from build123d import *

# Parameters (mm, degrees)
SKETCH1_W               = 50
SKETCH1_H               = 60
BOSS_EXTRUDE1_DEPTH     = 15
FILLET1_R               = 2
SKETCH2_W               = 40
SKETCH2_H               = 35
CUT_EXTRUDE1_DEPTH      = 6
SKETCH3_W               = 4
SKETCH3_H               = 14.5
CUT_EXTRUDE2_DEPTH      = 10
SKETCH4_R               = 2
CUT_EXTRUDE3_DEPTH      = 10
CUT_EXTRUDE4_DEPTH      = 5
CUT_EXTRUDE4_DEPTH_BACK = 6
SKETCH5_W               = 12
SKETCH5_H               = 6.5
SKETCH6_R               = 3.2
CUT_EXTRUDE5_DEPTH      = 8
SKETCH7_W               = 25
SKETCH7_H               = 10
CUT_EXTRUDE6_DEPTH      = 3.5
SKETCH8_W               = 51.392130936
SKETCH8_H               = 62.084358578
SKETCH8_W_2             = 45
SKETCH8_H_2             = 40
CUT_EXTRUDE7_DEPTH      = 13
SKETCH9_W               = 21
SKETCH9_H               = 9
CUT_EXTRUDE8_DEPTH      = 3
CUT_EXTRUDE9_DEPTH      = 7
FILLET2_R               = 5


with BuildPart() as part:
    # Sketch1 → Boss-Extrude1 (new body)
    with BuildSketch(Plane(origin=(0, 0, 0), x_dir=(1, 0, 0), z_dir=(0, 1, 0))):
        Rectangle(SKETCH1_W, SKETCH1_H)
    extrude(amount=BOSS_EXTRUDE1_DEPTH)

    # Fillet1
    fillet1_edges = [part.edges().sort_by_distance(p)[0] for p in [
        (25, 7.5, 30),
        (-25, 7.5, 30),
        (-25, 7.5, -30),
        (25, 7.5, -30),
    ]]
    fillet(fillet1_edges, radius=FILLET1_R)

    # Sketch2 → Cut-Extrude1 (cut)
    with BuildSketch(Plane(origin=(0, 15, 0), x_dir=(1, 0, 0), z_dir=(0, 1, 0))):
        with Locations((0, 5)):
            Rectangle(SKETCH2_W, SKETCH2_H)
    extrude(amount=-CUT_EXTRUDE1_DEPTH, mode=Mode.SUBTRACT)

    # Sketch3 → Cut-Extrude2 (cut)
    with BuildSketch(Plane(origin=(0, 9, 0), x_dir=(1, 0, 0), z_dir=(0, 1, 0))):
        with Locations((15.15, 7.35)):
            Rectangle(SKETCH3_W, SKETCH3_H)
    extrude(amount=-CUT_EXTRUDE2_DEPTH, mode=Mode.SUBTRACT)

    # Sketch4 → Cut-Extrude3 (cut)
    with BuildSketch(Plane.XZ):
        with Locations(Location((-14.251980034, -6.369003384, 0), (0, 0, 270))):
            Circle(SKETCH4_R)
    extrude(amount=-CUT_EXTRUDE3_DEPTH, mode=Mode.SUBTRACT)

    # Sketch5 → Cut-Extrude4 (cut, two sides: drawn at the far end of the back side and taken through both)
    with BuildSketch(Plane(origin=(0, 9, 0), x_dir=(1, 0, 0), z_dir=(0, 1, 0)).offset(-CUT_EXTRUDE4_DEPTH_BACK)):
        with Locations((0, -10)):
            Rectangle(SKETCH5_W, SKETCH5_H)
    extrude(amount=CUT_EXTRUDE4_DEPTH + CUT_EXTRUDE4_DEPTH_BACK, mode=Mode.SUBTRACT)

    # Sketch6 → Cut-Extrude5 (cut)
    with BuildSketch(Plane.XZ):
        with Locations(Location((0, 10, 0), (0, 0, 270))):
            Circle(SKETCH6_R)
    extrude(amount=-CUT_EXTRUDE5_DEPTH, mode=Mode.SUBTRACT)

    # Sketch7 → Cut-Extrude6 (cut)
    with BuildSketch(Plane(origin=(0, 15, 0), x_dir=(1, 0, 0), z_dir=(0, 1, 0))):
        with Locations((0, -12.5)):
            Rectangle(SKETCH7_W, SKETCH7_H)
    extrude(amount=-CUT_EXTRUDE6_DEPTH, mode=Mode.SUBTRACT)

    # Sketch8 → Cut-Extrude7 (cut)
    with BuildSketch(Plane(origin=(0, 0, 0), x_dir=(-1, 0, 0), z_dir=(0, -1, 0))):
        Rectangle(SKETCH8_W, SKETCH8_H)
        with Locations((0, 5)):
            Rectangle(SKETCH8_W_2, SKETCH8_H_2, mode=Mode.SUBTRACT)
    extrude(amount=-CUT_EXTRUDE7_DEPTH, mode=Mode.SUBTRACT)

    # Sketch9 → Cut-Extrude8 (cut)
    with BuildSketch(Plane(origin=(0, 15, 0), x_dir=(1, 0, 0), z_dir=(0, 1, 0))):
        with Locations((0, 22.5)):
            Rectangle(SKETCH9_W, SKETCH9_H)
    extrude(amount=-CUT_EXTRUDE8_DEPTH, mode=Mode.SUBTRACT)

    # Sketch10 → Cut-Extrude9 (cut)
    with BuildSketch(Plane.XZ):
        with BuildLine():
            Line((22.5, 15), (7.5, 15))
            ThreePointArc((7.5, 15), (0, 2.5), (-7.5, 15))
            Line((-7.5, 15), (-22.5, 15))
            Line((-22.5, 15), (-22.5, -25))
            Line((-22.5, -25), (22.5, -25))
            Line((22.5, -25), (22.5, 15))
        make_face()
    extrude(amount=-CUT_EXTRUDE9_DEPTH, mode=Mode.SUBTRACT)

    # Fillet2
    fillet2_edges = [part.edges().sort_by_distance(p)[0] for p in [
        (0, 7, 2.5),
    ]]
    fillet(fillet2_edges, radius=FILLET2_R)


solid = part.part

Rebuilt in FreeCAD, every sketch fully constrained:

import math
import FreeCAD as App
import Part
import Sketcher


def edges_at(feature, points):
    """Names of the edges that pass closest to the given points."""
    edges = feature.Shape.Edges
    near = lambda p: min(range(len(edges)), key=lambda i: edges[i].distToShape(Part.Vertex(*p))[0])
    return sorted({f"Edge{near(p) + 1}" for p in points})


def add_polygon(sketch, points):
    """Adds a closed chain of lines whose ends are joined by coincident constraints."""
    first, n = sketch.GeometryCount, len(points)
    for a, b in zip(points, points[1:] + points[:1]):
        sketch.addGeometry(Part.LineSegment(App.Vector(*a, 0), App.Vector(*b, 0)), False)
    for i in range(n):
        sketch.addConstraint(Sketcher.Constraint("Coincident", first + i, 2, first + (i + 1) % n, 1))

doc = App.newDocument("Part")
body = doc.addObject("PartDesign::Body", "Body")

sketch1 = doc.addObject("Sketcher::SketchObject", "Sketch")
body.addObject(sketch1)
sketch1.AttachmentSupport = (doc.XZ_Plane, [""])
sketch1.MapMode = "FlatFace"
add_polygon(sketch1, [(-25, -30), (-25, 30), (25, 30), (25, -30)])
sketch1.addConstraint([
    Sketcher.Constraint("Vertical", 0),
    Sketcher.Constraint("Horizontal", 1),
    Sketcher.Constraint("Vertical", 2),
    Sketcher.Constraint("Horizontal", 3),
    Sketcher.Constraint("Symmetric", 0, 2, 2, 2, -1, 1),
    Sketcher.Constraint("DistanceX", 1, 1, 1, 2, 50.0),
    Sketcher.Constraint("DistanceY", 0, 1, 0, 2, 60.0),
])
pad1 = doc.addObject("PartDesign::Pad", "Pad")
body.addObject(pad1)
pad1.Profile = sketch1
pad1.Length = 15
pad1.Reversed = True
doc.recompute()

fillet = doc.addObject("PartDesign::Fillet", "Fillet")
body.addObject(fillet)
fillet.Base = (pad1, edges_at(pad1, [
    (25, 7.5, 30),
    (-25, 7.5, 30),
    (-25, 7.5, -30),
    (25, 7.5, -30),
]))
fillet.Radius = 2

sketch2 = doc.addObject("Sketcher::SketchObject", "Sketch001")
body.addObject(sketch2)
sketch2.AttachmentSupport = (doc.XZ_Plane, [""])
sketch2.MapMode = "FlatFace"
sketch2.AttachmentOffset = App.Placement(App.Vector(0, 0, -15), App.Rotation())
add_polygon(sketch2, [(-20, -22.5), (-20, 12.5), (20, 12.5), (20, -22.5)])
sketch2.addConstraint([
    Sketcher.Constraint("Vertical", 0),
    Sketcher.Constraint("Horizontal", 1),
    Sketcher.Constraint("Vertical", 2),
    Sketcher.Constraint("Horizontal", 3),
    Sketcher.Constraint("DistanceX", 1, 1, 1, 2, 40.0),
    Sketcher.Constraint("DistanceY", 0, 1, 0, 2, 35.0),
    Sketcher.Constraint("DistanceX", 0, 2, -1, 1, 20.0),
    Sketcher.Constraint("DistanceY", -1, 1, 0, 2, 12.5),
])
pocket1 = doc.addObject("PartDesign::Pocket", "Pocket")
body.addObject(pocket1)
pocket1.Profile = sketch2
pocket1.Length = 6
pocket1.Reversed = True

sketch3 = doc.addObject("Sketcher::SketchObject", "Sketch002")
body.addObject(sketch3)
sketch3.AttachmentSupport = (doc.XZ_Plane, [""])
sketch3.MapMode = "FlatFace"
sketch3.AttachmentOffset = App.Placement(App.Vector(0, 0, -9), App.Rotation())
add_polygon(sketch3, [(13.15, -14.6), (13.15, -0.1), (17.15, -0.1), (17.15, -14.6)])
sketch3.addConstraint([
    Sketcher.Constraint("Vertical", 0),
    Sketcher.Constraint("Horizontal", 1),
    Sketcher.Constraint("Vertical", 2),
    Sketcher.Constraint("Horizontal", 3),
    Sketcher.Constraint("DistanceX", 1, 1, 1, 2, 4.0),
    Sketcher.Constraint("DistanceY", 0, 1, 0, 2, 14.5),
    Sketcher.Constraint("DistanceY", 0, 2, -1, 1, 0.1),
    Sketcher.Constraint("DistanceX", -1, 1, 0, 2, 13.15),
])
pocket2 = doc.addObject("PartDesign::Pocket", "Pocket001")
body.addObject(pocket2)
pocket2.Profile = sketch3
pocket2.Length = 10
pocket2.Reversed = True

sketch4 = doc.addObject("Sketcher::SketchObject", "Sketch003")
body.addObject(sketch4)
sketch4.AttachmentSupport = (doc.XZ_Plane, [""])
sketch4.MapMode = "FlatFace"
sketch4.addGeometry(Part.Circle(App.Vector(-14.25198, -6.369003, 0), App.Vector(0, 0, 1), 2), False)
sketch4.addConstraint([
    Sketcher.Constraint("Diameter", 0, 4.0),
    Sketcher.Constraint("DistanceX", 0, 3, -1, 1, 14.25198),
    Sketcher.Constraint("DistanceY", 0, 3, -1, 1, 6.369003),
])
pocket3 = doc.addObject("PartDesign::Pocket", "Pocket002")
body.addObject(pocket3)
pocket3.Profile = sketch4
pocket3.Length = 10

sketch5 = doc.addObject("Sketcher::SketchObject", "Sketch004")
body.addObject(sketch5)
sketch5.AttachmentSupport = (doc.XZ_Plane, [""])
sketch5.MapMode = "FlatFace"
sketch5.AttachmentOffset = App.Placement(App.Vector(0, 0, -9), App.Rotation())
add_polygon(sketch5, [(-6, 6.75), (-6, 13.25), (6, 13.25), (6, 6.75)])
sketch5.addConstraint([
    Sketcher.Constraint("Vertical", 0),
    Sketcher.Constraint("Horizontal", 1),
    Sketcher.Constraint("Vertical", 2),
    Sketcher.Constraint("Horizontal", 3),
    Sketcher.Constraint("DistanceX", 1, 1, 1, 2, 12.0),
    Sketcher.Constraint("DistanceY", 0, 1, 0, 2, 6.5),
    Sketcher.Constraint("DistanceX", 0, 2, -1, 1, 6.0),
    Sketcher.Constraint("DistanceY", -1, 1, 0, 2, 13.25),
])
pocket4 = doc.addObject("PartDesign::Pocket", "Pocket003")
body.addObject(pocket4)
pocket4.Profile = sketch5
pocket4.Type = "TwoLengths"
pocket4.Length = 5
pocket4.Length2 = 6

sketch6 = doc.addObject("Sketcher::SketchObject", "Sketch005")
body.addObject(sketch6)
sketch6.AttachmentSupport = (doc.XZ_Plane, [""])
sketch6.MapMode = "FlatFace"
sketch6.addGeometry(Part.Circle(App.Vector(0, 10, 0), App.Vector(0, 0, 1), 3.2), False)
sketch6.addConstraint([
    Sketcher.Constraint("PointOnObject", 0, 3, -2),
    Sketcher.Constraint("Diameter", 0, 6.4),
    Sketcher.Constraint("DistanceY", -1, 1, 0, 3, 10.0),
])
pocket5 = doc.addObject("PartDesign::Pocket", "Pocket004")
body.addObject(pocket5)
pocket5.Profile = sketch6
pocket5.Length = 8

sketch7 = doc.addObject("Sketcher::SketchObject", "Sketch006")
body.addObject(sketch7)
sketch7.AttachmentSupport = (doc.XZ_Plane, [""])
sketch7.MapMode = "FlatFace"
sketch7.AttachmentOffset = App.Placement(App.Vector(0, 0, -15), App.Rotation())
add_polygon(sketch7, [(-12.5, 7.5), (-12.5, 17.5), (12.5, 17.5), (12.5, 7.5)])
sketch7.addConstraint([
    Sketcher.Constraint("Vertical", 0),
    Sketcher.Constraint("Horizontal", 1),
    Sketcher.Constraint("Vertical", 2),
    Sketcher.Constraint("Horizontal", 3),
    Sketcher.Constraint("DistanceX", 1, 1, 1, 2, 25.0),
    Sketcher.Constraint("DistanceY", 0, 1, 0, 2, 10.0),
    Sketcher.Constraint("DistanceX", 0, 2, -1, 1, 12.5),
    Sketcher.Constraint("DistanceY", -1, 1, 0, 2, 17.5),
])
pocket6 = doc.addObject("PartDesign::Pocket", "Pocket005")
body.addObject(pocket6)
pocket6.Profile = sketch7
pocket6.Length = 3.5
pocket6.Reversed = True

sketch8 = doc.addObject("Sketcher::SketchObject", "Sketch007")
body.addObject(sketch8)
sketch8.AttachmentSupport = (doc.XZ_Plane, [""])
sketch8.MapMode = "FlatFace"
add_polygon(sketch8, [(25.696065, -31.042179), (25.696065, 31.042179), (-25.696065, 31.042179), (-25.696065, -31.042179)])
add_polygon(sketch8, [(-22.5, 15), (22.5, 15), (22.5, -25), (-22.5, -25)])
sketch8.addConstraint([
    Sketcher.Constraint("Vertical", 0),
    Sketcher.Constraint("Horizontal", 1),
    Sketcher.Constraint("Vertical", 2),
    Sketcher.Constraint("Horizontal", 3),
    Sketcher.Constraint("Horizontal", 4),
    Sketcher.Constraint("Vertical", 5),
    Sketcher.Constraint("Horizontal", 6),
    Sketcher.Constraint("Vertical", 7),
    Sketcher.Constraint("Symmetric", 0, 2, 2, 2, -1, 1),
    Sketcher.Constraint("DistanceX", 4, 1, 4, 2, 45.0),
    Sketcher.Constraint("DistanceY", 5, 2, 5, 1, 40.0),
    Sketcher.Constraint("DistanceY", -1, 1, 4, 2, 15.0),
    Sketcher.Constraint("DistanceX", -1, 1, 4, 2, 22.5),
    Sketcher.Constraint("DistanceX", 1, 2, 1, 1, 51.392131),
    Sketcher.Constraint("DistanceY", 0, 1, 0, 2, 62.084359),
])
pocket7 = doc.addObject("PartDesign::Pocket", "Pocket006")
body.addObject(pocket7)
pocket7.Profile = sketch8
pocket7.Length = 13

sketch9 = doc.addObject("Sketcher::SketchObject", "Sketch008")
body.addObject(sketch9)
sketch9.AttachmentSupport = (doc.XZ_Plane, [""])
sketch9.MapMode = "FlatFace"
sketch9.AttachmentOffset = App.Placement(App.Vector(0, 0, -15), App.Rotation())
add_polygon(sketch9, [(-10.5, -27), (-10.5, -18), (10.5, -18), (10.5, -27)])
sketch9.addConstraint([
    Sketcher.Constraint("Vertical", 0),
    Sketcher.Constraint("Horizontal", 1),
    Sketcher.Constraint("Vertical", 2),
    Sketcher.Constraint("Horizontal", 3),
    Sketcher.Constraint("DistanceX", 1, 1, 1, 2, 21.0),
    Sketcher.Constraint("DistanceY", 0, 1, 0, 2, 9.0),
    Sketcher.Constraint("DistanceY", 0, 2, -1, 1, 18.0),
    Sketcher.Constraint("DistanceX", 0, 2, -1, 1, 10.5),
])
pocket8 = doc.addObject("PartDesign::Pocket", "Pocket007")
body.addObject(pocket8)
pocket8.Profile = sketch9
pocket8.Length = 3
pocket8.Reversed = True

sketch10 = doc.addObject("Sketcher::SketchObject", "Sketch009")
body.addObject(sketch10)
sketch10.AttachmentSupport = (doc.XZ_Plane, [""])
sketch10.MapMode = "FlatFace"
sketch10.addGeometry([
    Part.LineSegment(App.Vector(22.5, 15, 0), App.Vector(7.5, 15, 0)),
    Part.ArcOfCircle(Part.Circle(App.Vector(0, 11, 0), App.Vector(0, 0, 1), 8.5), math.radians(151.927513), math.radians(388.072487)),
    Part.LineSegment(App.Vector(-7.5, 15, 0), App.Vector(-22.5, 15, 0)),
    Part.LineSegment(App.Vector(-22.5, 15, 0), App.Vector(-22.5, -25, 0)),
    Part.LineSegment(App.Vector(-22.5, -25, 0), App.Vector(22.5, -25, 0)),
    Part.LineSegment(App.Vector(22.5, -25, 0), App.Vector(22.5, 15, 0)),
], False)
sketch10.addConstraint([
    Sketcher.Constraint("Coincident", 0, 2, 1, 2),
    Sketcher.Constraint("Coincident", 1, 1, 2, 1),
    Sketcher.Constraint("Coincident", 2, 2, 3, 1),
    Sketcher.Constraint("Coincident", 3, 2, 4, 1),
    Sketcher.Constraint("Coincident", 4, 2, 5, 1),
    Sketcher.Constraint("Coincident", 5, 2, 0, 1),
    Sketcher.Constraint("Horizontal", 0),
    Sketcher.Constraint("Horizontal", 2),
    Sketcher.Constraint("Vertical", 3),
    Sketcher.Constraint("Horizontal", 4),
    Sketcher.Constraint("Vertical", 5),
    Sketcher.Constraint("Symmetric", 0, 2, 1, 1, -2),
    Sketcher.Constraint("Equal", 0, 2),
    Sketcher.Constraint("Radius", 1, 8.5),
    Sketcher.Constraint("DistanceX", 0, 2, 0, 1, 15.0),
    Sketcher.Constraint("DistanceX", 4, 1, 4, 2, 45.0),
    Sketcher.Constraint("DistanceY", 3, 2, 3, 1, 40.0),
    Sketcher.Constraint("DistanceY", -1, 1, 1, 3, 11.0),
])
pocket9 = doc.addObject("PartDesign::Pocket", "Pocket008")
body.addObject(pocket9)
pocket9.Profile = sketch10
pocket9.Length = 7
doc.recompute()

fillet2 = doc.addObject("PartDesign::Fillet", "Fillet001")
body.addObject(fillet2)
fillet2.Base = (pocket9, edges_at(pocket9, [(0, 7, 2.5)]))
fillet2.Radius = 5

doc.recompute()
